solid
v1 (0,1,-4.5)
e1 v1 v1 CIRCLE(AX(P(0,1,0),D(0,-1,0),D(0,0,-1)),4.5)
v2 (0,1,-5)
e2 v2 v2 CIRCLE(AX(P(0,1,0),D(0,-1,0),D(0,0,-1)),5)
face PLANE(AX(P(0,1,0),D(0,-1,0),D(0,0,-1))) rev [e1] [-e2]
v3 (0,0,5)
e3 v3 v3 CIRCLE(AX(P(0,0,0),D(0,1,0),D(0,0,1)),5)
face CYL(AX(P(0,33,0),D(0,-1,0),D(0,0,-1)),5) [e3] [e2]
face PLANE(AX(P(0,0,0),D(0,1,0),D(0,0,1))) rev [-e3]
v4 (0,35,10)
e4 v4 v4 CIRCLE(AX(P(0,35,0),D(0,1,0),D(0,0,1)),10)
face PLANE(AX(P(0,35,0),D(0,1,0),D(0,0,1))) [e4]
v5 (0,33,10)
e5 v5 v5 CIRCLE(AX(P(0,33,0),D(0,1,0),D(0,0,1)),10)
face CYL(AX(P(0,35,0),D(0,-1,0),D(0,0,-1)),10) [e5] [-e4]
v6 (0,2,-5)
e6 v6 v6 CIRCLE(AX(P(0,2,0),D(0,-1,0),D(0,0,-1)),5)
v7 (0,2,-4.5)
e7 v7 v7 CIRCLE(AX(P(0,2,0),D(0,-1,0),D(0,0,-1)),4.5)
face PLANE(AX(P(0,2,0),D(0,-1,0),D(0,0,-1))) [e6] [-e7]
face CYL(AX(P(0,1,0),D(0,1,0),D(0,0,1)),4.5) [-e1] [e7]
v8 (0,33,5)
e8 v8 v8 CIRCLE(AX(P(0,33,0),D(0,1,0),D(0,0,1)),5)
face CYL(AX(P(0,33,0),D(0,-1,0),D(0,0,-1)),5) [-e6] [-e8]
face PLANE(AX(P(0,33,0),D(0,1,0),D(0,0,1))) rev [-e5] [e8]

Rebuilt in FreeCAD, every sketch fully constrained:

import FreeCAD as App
import Part
import Sketcher

doc = App.newDocument("Part")
body = doc.addObject("PartDesign::Body", "Body")

sketch1 = body.newObject("Sketcher::SketchObject", "Sketch")
sketch1.AttachmentSupport = (doc.getObject("XZ_Plane"), [""])
sketch1.MapMode = "FlatFace"
sketch1.addGeometry(Part.Circle(App.Vector(0, 0, 0), App.Vector(0, 0, 1), 5), False)
sketch1.addConstraint([
    Sketcher.Constraint("Coincident", 0, 3, -1, 1),
    Sketcher.Constraint("Diameter", 0, 10.0),
])
pad1 = body.newObject("PartDesign::Pad", "Pad")
pad1.Profile = sketch1
pad1.Length = 33
pad1.Reversed = True

sketch2 = body.newObject("Sketcher::SketchObject", "Sketch001")
sketch2.AttachmentSupport = (doc.getObject("XZ_Plane"), [""])
sketch2.MapMode = "FlatFace"
sketch2.AttachmentOffset = App.Placement(App.Vector(0, 0, -33), App.Rotation())
sketch2.addGeometry(Part.Circle(App.Vector(0, 0, 0), App.Vector(0, 0, 1), 10), False)
sketch2.addConstraint([
    Sketcher.Constraint("Coincident", 0, 3, -1, 1),
    Sketcher.Constraint("Diameter", 0, 20.0),
])
pad2 = body.newObject("PartDesign::Pad", "Pad001")
pad2.Profile = sketch2
pad2.Length = 2
pad2.Reversed = True

sketch3 = body.newObject("Sketcher::SketchObject", "Sketch002")
sketch3.AttachmentSupport = (doc.getObject("XZ_Plane"), [""])
sketch3.MapMode = "FlatFace"
sketch3.AttachmentOffset = App.Placement(App.Vector(0, 0, -2), App.Rotation())
sketch3.addGeometry([
    Part.Circle(App.Vector(0, 0, 0), App.Vector(0, 0, 1), 5),
    Part.Circle(App.Vector(0, 0, 0), App.Vector(0, 0, 1), 4.5),
], False)
sketch3.addConstraint([
    Sketcher.Constraint("Coincident", 0, 3, -1, 1),
    Sketcher.Constraint("Coincident", 1, 3, -1, 1),
    Sketcher.Constraint("Diameter", 0, 10.0),
    Sketcher.Constraint("Diameter", 1, 9.0),
])
pocket1 = body.newObject("PartDesign::Pocket", "Pocket")
pocket1.Profile = sketch3
pocket1.Length = 1
pocket1.Reversed = True

doc.recompute()
